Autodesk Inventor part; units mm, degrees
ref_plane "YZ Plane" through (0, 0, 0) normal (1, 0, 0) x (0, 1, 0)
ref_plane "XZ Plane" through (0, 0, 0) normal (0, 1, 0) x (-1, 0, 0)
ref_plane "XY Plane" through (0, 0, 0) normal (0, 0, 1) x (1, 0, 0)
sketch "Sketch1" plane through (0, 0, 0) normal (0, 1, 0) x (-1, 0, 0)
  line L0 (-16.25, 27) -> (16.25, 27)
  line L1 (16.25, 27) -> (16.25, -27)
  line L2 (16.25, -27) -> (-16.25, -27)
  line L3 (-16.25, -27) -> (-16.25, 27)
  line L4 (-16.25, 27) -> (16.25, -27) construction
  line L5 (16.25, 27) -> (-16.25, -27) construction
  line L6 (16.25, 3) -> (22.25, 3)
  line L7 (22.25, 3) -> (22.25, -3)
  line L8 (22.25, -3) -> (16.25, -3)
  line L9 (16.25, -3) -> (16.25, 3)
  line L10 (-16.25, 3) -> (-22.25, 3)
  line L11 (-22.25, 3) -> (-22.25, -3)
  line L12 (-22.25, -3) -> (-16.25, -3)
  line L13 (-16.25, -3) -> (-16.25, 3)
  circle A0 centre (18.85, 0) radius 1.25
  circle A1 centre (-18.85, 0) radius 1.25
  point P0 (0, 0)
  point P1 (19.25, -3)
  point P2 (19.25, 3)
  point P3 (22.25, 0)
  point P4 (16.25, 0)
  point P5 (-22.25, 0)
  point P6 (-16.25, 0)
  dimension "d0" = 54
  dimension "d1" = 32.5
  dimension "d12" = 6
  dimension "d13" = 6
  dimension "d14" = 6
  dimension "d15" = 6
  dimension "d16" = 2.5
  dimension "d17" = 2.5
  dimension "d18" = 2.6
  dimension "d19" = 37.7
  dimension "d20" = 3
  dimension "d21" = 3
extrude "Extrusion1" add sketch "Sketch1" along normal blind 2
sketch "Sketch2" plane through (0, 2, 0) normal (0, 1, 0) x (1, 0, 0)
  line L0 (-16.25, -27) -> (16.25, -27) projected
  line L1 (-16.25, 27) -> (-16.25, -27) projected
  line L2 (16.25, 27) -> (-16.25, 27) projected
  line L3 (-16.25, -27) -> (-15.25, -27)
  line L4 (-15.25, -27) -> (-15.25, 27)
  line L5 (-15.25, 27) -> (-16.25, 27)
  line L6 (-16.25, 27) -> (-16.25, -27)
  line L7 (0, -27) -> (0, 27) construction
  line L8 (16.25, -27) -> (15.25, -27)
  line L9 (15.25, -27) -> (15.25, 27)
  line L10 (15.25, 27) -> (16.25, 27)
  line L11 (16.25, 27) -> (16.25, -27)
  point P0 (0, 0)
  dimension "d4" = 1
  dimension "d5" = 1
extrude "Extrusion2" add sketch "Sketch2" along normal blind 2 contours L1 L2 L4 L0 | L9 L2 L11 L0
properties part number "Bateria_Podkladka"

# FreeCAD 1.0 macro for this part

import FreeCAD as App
import Part
import Sketcher

V = App.Vector
Q = App.Units.Quantity


def add_polygon(sketch, points):
    """Adds a closed chain of lines whose ends are joined by coincident constraints."""
    first, n = sketch.GeometryCount, len(points)
    for a, b in zip(points, points[1:] + points[:1]):
        sketch.addGeometry(Part.LineSegment(App.Vector(*a, 0), App.Vector(*b, 0)), False)
    for i in range(n):
        sketch.addConstraint(Sketcher.Constraint("Coincident", first + i, 2, first + (i + 1) % n, 1))

doc = App.newDocument("Part")
body = doc.addObject("PartDesign::Body", "Body")

# Sketch on XZ plane
sketch1 = doc.addObject("Sketcher::SketchObject", "Sketch")
body.addObject(sketch1)
sketch1.AttachmentSupport = (doc.XZ_Plane, [""])
sketch1.MapMode = "FlatFace"
add_polygon(sketch1, [(-16.25, 27), (16.25, 27), (16.25, 3), (22.25, 3), (22.25, -3), (16.25, -3), (16.25, -27), (-16.25, -27), (-16.25, -3), (-22.25, -3), (-22.25, 3), (-16.25, 3)])  # lines 0-11
sketch1.addGeometry(Part.Circle(V(-18.85, 0, 0), V(0, 0, 1), 1.25), False)  # 12
sketch1.addGeometry(Part.Circle(V(18.85, 0, 0), V(0, 0, 1), 1.25), False)  # 13
sketch1.addConstraint([
    Sketcher.Constraint("Horizontal", 0),
    Sketcher.Constraint("Vertical", 1),
    Sketcher.Constraint("Horizontal", 2),
    Sketcher.Constraint("Vertical", 3),
    Sketcher.Constraint("Horizontal", 4),
    Sketcher.Constraint("Vertical", 5),
    Sketcher.Constraint("Horizontal", 6),
    Sketcher.Constraint("Vertical", 7),
    Sketcher.Constraint("Horizontal", 8),
    Sketcher.Constraint("Vertical", 9),
    Sketcher.Constraint("Horizontal", 10),
    Sketcher.Constraint("Vertical", 11),
    Sketcher.Constraint("Equal", 12, 13),
    Sketcher.Constraint("Symmetric", 12, 3, 13, 3, -1, 1),
    Sketcher.Constraint("Symmetric", 0, 2, 6, 2, -1, 1),
    Sketcher.Constraint("Symmetric", 2, 2, 8, 2, -1, 1),
    Sketcher.Constraint("Symmetric", 4, 2, 10, 2, -1, 1),
    Sketcher.Constraint("Symmetric", 4, 2, 7, 2, -2),
    Sketcher.Constraint("PointOnObject", 12, 3, -1),
    Sketcher.Constraint("Equal", 10, 3),
    Sketcher.Constraint("Diameter", 12, Q("2.5 mm")),
    Sketcher.Constraint("DistanceX", 2, 1, 2, 2, Q("6 mm")),
    Sketcher.Constraint("DistanceX", 0, 1, 0, 2, Q("32.5 mm")),
    Sketcher.Constraint("DistanceX", 12, 3, 13, 3, Q("37.7 mm")),
    Sketcher.Constraint("DistanceY", 1, 2, 1, 1, Q("24 mm")),
])
pad1 = doc.addObject("PartDesign::Pad", "Pad")
body.addObject(pad1)
pad1.Profile = sketch1
pad1.Length = 2
pad1.Reversed = True

# Sketch on XZ plane
sketch2 = doc.addObject("Sketcher::SketchObject", "Sketch001")
body.addObject(sketch2)
sketch2.AttachmentSupport = (doc.XZ_Plane, [""])
sketch2.MapMode = "FlatFace"
sketch2.AttachmentOffset = App.Placement(V(0, 0, -2), App.Rotation())
add_polygon(sketch2, [(-16.25, -27), (-16.25, 27), (-15.25, 27), (-15.25, -27)])  # lines 0-3
add_polygon(sketch2, [(15.25, -27), (15.25, 27), (16.25, 27), (16.25, -27)])  # lines 4-7
sketch2.addConstraint([
    Sketcher.Constraint("Vertical", 0),
    Sketcher.Constraint("Horizontal", 1),
    Sketcher.Constraint("Vertical", 2),
    Sketcher.Constraint("Horizontal", 3),
    Sketcher.Constraint("Vertical", 4),
    Sketcher.Constraint("Horizontal", 5),
    Sketcher.Constraint("Vertical", 6),
    Sketcher.Constraint("Horizontal", 7),
    Sketcher.Constraint("Symmetric", 2, 2, 4, 2, -1, 1),
    Sketcher.Constraint("Symmetric", 0, 2, 6, 2, -1, 1),
    Sketcher.Constraint("Horizontal", 1, 2, 4, 2),
    Sketcher.Constraint("DistanceX", 1, 1, 1, 2, Q("1 mm")),
    Sketcher.Constraint("DistanceY", 0, 1, 0, 2, Q("54 mm")),
    Sketcher.Constraint("DistanceX", 1, 2, 4, 2, Q("30.5 mm")),
])
pad2 = doc.addObject("PartDesign::Pad", "Pad001")
body.addObject(pad2)
pad2.Profile = sketch2
pad2.Length = 2
pad2.Reversed = True

doc.recompute()
